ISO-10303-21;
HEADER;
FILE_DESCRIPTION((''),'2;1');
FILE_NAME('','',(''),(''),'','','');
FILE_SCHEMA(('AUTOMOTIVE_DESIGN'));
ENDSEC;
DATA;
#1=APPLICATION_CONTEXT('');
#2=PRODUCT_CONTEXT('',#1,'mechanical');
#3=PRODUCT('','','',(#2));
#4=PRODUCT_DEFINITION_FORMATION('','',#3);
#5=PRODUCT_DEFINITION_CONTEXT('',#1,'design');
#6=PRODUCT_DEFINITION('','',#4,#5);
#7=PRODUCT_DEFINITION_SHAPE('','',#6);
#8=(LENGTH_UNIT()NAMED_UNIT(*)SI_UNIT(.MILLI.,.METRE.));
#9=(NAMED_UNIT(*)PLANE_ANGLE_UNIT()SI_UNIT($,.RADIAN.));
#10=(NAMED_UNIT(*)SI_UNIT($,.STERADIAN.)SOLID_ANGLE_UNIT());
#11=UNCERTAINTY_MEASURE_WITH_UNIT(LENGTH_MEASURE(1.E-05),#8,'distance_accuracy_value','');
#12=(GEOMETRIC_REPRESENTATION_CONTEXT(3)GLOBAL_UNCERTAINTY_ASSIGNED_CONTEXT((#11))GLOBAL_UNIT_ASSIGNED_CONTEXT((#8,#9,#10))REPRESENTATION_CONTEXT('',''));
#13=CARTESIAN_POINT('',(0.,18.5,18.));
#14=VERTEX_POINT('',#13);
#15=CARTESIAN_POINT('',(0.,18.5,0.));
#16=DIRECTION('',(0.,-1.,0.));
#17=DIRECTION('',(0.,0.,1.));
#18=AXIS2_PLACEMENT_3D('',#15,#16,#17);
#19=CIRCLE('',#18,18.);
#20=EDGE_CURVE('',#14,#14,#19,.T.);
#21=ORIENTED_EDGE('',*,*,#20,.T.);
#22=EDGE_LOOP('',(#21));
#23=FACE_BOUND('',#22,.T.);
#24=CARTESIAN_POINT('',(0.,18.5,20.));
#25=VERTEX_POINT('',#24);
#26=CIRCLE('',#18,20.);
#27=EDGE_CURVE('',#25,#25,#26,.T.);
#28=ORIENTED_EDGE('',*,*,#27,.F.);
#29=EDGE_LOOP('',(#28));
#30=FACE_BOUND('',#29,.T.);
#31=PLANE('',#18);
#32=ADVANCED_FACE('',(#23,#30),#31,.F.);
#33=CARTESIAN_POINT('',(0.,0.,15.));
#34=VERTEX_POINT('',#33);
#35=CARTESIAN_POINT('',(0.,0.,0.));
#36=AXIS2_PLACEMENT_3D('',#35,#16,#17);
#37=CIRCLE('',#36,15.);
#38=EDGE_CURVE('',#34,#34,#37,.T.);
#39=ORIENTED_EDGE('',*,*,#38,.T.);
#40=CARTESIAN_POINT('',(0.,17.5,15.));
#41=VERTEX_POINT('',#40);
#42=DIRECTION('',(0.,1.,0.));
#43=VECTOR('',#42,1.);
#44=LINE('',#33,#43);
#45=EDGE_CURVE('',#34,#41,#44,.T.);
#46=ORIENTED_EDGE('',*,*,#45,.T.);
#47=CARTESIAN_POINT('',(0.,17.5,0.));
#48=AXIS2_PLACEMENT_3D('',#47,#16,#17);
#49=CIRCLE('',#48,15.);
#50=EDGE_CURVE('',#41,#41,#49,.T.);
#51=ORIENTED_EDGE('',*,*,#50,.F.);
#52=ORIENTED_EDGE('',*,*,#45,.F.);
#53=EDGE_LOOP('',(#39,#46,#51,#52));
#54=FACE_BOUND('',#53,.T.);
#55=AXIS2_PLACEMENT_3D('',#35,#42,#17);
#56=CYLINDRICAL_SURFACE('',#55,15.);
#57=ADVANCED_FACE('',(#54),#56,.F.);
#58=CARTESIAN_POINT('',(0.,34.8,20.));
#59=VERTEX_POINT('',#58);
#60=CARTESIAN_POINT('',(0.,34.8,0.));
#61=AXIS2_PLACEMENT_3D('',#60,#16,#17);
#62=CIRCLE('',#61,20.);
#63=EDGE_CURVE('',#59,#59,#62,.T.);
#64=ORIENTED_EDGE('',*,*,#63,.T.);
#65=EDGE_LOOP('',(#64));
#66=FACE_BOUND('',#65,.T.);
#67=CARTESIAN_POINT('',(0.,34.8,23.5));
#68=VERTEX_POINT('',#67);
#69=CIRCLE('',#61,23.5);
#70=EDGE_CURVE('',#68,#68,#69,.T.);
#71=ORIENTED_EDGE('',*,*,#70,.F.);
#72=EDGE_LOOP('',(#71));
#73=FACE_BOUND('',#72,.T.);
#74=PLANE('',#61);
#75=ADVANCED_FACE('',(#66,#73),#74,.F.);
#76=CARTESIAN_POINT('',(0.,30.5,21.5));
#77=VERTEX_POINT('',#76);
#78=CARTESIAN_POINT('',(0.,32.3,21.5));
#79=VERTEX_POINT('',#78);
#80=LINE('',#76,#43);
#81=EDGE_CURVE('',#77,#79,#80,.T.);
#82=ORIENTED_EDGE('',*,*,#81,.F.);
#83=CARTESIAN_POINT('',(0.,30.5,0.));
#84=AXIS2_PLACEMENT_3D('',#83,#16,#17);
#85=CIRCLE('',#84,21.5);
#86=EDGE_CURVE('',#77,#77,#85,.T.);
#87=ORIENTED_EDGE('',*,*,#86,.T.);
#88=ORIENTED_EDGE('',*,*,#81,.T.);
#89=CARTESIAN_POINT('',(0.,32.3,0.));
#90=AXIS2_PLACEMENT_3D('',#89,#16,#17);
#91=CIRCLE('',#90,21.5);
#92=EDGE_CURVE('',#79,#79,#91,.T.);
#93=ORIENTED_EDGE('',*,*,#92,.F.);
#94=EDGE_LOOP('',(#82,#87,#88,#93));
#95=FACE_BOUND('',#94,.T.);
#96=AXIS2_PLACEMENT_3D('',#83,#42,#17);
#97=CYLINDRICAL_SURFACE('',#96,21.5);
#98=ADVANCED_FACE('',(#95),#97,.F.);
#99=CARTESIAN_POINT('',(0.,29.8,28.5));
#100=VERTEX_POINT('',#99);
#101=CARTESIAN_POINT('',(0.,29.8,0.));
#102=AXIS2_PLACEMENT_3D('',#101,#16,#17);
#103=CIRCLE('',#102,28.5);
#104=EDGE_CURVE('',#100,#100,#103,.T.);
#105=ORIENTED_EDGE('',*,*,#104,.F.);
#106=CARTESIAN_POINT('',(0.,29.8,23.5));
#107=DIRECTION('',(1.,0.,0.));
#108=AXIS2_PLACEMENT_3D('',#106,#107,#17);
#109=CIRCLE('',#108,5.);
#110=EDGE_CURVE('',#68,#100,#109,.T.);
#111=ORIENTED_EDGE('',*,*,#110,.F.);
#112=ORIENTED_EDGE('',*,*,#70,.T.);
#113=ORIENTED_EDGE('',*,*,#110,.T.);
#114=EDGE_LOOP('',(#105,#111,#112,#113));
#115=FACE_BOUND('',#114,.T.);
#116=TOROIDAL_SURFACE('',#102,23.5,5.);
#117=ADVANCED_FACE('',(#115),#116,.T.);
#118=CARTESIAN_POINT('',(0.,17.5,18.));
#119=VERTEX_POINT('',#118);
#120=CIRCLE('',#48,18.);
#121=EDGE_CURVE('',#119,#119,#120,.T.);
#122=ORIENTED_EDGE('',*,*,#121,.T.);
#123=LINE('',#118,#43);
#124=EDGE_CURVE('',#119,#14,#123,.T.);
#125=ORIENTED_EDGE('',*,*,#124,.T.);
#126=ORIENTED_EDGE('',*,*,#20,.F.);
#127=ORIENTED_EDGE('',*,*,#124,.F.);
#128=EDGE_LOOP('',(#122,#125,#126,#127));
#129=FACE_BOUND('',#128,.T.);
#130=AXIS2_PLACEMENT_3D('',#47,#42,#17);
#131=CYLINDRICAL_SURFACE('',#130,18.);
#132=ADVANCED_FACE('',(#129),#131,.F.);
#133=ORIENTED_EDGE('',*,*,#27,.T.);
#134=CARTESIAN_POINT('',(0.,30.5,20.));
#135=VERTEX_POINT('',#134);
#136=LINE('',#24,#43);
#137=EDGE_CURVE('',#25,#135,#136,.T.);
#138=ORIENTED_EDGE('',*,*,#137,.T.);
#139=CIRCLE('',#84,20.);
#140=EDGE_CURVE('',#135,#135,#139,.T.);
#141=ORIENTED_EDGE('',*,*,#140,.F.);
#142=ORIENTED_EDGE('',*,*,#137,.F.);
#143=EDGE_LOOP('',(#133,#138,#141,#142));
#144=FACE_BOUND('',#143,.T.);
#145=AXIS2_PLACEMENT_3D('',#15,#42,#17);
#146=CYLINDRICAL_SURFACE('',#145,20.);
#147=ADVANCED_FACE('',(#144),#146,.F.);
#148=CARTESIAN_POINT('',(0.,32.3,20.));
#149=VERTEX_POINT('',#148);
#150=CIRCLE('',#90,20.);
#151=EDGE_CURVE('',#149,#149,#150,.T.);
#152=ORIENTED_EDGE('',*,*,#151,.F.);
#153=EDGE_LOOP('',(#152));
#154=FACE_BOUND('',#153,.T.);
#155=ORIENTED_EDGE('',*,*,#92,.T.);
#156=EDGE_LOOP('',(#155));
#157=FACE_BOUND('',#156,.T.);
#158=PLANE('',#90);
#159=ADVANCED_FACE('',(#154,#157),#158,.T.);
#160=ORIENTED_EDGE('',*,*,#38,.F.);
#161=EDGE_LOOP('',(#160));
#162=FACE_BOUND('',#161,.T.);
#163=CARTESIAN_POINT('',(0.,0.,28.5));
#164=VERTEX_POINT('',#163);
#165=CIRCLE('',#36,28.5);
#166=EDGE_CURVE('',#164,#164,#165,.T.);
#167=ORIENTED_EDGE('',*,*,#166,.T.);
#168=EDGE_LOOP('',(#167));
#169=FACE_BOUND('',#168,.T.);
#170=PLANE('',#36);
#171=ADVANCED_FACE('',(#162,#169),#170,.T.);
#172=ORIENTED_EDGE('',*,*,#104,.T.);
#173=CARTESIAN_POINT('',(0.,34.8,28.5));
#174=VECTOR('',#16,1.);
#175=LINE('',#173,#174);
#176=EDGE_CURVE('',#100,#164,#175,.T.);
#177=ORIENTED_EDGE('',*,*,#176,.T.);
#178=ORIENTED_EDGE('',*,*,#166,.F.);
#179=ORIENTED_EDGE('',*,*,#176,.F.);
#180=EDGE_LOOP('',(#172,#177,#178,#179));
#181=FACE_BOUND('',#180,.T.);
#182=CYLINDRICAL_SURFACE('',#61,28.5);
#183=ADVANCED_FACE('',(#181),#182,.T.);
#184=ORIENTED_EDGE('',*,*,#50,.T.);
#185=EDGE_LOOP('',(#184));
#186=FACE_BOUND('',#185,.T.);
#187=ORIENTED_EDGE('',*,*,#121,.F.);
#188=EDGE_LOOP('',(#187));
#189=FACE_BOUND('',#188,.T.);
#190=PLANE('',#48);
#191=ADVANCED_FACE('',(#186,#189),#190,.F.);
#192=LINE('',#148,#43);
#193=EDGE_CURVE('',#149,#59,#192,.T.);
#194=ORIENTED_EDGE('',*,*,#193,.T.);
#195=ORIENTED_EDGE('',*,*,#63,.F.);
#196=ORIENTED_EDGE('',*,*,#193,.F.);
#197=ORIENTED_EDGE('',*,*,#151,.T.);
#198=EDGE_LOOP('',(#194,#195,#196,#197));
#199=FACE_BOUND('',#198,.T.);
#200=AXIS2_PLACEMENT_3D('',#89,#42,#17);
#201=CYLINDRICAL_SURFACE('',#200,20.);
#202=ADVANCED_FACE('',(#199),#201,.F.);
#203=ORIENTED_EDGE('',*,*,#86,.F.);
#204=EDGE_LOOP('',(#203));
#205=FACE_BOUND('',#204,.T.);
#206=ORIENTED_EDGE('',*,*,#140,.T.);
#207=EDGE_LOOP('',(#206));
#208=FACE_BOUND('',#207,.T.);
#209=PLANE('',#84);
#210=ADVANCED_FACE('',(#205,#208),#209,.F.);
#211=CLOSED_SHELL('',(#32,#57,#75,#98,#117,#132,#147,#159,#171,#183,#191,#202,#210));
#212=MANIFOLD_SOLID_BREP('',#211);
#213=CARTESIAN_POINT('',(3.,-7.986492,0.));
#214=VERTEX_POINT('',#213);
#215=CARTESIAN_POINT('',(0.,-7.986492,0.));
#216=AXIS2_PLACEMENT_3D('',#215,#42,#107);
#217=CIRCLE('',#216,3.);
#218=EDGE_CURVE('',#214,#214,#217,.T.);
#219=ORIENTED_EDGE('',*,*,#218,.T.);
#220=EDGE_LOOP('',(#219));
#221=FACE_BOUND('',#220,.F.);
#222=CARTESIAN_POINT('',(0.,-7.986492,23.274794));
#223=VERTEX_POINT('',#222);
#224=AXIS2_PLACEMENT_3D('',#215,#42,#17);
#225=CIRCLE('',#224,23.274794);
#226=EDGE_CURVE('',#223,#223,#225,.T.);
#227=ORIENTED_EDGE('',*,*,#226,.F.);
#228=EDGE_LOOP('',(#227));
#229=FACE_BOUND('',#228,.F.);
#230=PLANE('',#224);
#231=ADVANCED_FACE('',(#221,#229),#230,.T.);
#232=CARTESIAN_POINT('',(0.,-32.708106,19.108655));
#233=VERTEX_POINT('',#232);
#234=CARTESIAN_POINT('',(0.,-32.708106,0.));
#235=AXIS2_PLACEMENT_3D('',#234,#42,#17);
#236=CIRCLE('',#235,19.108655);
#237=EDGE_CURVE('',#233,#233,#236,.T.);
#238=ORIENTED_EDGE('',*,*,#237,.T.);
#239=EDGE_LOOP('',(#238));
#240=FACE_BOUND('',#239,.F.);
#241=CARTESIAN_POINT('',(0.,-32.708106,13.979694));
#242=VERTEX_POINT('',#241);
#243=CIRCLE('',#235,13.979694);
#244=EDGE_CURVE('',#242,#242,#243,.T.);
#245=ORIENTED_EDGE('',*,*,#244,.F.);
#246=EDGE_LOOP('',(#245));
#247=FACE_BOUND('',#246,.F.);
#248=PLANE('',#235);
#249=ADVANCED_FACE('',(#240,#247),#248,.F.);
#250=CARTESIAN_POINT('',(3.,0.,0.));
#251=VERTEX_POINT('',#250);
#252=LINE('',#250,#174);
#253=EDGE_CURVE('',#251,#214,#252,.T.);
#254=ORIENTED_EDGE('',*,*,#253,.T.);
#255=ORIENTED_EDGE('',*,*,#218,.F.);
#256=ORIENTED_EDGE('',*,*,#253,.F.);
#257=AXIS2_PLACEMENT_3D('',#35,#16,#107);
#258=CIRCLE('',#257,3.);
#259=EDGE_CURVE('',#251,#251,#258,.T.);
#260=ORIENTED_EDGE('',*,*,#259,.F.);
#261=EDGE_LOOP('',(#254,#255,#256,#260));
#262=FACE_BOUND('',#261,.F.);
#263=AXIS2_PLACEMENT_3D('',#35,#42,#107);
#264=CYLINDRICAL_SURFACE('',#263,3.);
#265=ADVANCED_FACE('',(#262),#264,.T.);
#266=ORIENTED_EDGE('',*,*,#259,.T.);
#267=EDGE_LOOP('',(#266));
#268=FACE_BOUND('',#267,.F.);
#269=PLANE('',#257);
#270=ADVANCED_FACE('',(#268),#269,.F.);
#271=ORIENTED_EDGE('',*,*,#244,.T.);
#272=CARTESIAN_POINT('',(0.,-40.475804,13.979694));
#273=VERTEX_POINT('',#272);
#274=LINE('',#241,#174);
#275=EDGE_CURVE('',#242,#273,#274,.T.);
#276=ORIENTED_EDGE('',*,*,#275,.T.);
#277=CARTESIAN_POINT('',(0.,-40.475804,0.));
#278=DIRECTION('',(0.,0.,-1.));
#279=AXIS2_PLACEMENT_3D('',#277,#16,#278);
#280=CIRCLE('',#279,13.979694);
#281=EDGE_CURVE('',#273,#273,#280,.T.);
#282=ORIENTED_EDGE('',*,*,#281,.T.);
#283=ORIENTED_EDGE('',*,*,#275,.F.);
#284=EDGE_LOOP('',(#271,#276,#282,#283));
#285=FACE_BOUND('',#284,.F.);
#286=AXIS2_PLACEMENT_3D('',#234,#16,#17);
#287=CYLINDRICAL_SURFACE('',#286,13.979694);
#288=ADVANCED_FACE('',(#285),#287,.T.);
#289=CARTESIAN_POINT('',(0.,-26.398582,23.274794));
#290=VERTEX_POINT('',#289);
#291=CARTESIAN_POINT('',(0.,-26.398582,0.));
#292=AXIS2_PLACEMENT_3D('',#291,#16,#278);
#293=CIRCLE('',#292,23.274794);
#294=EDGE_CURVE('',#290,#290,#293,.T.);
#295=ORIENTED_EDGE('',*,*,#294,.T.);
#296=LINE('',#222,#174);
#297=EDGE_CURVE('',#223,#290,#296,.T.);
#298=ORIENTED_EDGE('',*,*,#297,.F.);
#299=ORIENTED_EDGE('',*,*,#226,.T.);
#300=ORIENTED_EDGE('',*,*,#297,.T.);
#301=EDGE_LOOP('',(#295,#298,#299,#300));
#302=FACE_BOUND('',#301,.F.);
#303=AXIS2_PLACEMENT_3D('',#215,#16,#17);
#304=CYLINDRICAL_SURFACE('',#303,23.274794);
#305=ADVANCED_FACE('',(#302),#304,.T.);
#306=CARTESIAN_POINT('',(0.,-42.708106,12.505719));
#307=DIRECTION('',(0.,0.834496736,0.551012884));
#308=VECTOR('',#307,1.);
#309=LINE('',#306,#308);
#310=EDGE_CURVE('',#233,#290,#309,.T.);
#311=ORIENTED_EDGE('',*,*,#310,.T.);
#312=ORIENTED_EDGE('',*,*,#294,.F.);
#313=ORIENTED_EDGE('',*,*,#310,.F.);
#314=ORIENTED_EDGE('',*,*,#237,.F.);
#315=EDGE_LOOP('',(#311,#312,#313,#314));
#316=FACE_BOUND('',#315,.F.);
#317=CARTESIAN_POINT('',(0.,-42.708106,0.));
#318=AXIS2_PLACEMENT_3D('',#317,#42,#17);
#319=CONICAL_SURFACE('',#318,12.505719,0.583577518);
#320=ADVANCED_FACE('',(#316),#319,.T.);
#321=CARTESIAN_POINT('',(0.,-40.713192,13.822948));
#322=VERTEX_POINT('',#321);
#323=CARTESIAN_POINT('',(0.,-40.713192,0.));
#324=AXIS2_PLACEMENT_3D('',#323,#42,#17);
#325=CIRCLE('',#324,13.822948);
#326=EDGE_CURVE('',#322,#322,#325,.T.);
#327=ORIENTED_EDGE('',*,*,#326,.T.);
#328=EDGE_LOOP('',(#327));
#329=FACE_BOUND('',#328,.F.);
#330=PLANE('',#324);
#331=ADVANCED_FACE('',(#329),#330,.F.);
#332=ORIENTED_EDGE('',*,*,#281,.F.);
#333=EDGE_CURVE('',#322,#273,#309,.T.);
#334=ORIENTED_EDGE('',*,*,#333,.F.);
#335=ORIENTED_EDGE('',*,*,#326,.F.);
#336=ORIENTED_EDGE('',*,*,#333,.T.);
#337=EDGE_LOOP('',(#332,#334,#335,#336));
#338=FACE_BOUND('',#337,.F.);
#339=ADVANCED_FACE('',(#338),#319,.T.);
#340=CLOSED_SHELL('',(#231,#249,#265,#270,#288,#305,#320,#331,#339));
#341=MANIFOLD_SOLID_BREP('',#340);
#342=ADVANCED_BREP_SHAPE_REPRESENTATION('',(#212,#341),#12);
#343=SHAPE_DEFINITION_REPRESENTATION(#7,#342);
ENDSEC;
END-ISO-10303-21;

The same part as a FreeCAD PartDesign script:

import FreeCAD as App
import Part
import Sketcher
from FreeCAD import Vector
Q = App.Units.Quantity


def edges_at(feature, points):
    """Names of the edges that pass closest to the given points."""
    edges = feature.Shape.Edges
    near = lambda p: min(range(len(edges)), key=lambda i: edges[i].distToShape(Part.Vertex(*p))[0])
    return sorted({f"Edge{near(p) + 1}" for p in points})


def add_polygon(sketch, points):
    """Adds a closed chain of lines whose ends are joined by coincident constraints."""
    first, n = sketch.GeometryCount, len(points)
    for a, b in zip(points, points[1:] + points[:1]):
        sketch.addGeometry(Part.LineSegment(App.Vector(*a, 0), App.Vector(*b, 0)), False)
    for i in range(n):
        sketch.addConstraint(Sketcher.Constraint("Coincident", first + i, 2, first + (i + 1) % n, 1))

doc = App.newDocument("Part")
body = doc.addObject("PartDesign::Body", "Body")

# Sketch on XZ plane
sketch1 = body.newObject("Sketcher::SketchObject", "Sketch")
sketch1.AttachmentSupport = (doc.getObject("XZ_Plane"), [""])
sketch1.MapMode = "FlatFace"
sketch1.addGeometry(Part.Circle(Vector(0, 0, 0), Vector(0, 0, 1), 3), False)
sketch1.addConstraint([
    Sketcher.Constraint("Coincident", 0, 3, -1, 1),
    Sketcher.Constraint("Diameter", 0, Q("6 mm")),
])
pad1 = body.newObject("PartDesign::Pad", "Pad")
pad1.Profile = sketch1
pad1.Length = 20

# Sketch on YZ plane
sketch2 = body.newObject("Sketcher::SketchObject", "Sketch001")
sketch2.AttachmentSupport = (doc.getObject("YZ_Plane"), [""])
sketch2.MapMode = "FlatFace"
add_polygon(sketch2, [(-40.713192, 0), (-7.986492, 0), (-7.986492, 23.274794), (-32.708106, 23.274794), (-32.708106, 13.979694), (-40.713192, 13.979694)])  # lines 0-5
sketch2.addConstraint([
    Sketcher.Constraint("Horizontal", 0),
    Sketcher.Constraint("Vertical", 1),
    Sketcher.Constraint("Horizontal", 2),
    Sketcher.Constraint("Vertical", 3),
    Sketcher.Constraint("Horizontal", 4),
    Sketcher.Constraint("Vertical", 5),
    Sketcher.Constraint("PointOnObject", 0, 2, -1),
    Sketcher.Constraint("DistanceX", 0, 1, 0, 2, Q("32.7267 mm")),
    Sketcher.Constraint("DistanceY", 3, 2, 3, 1, Q("9.2951 mm")),
    Sketcher.Constraint("DistanceX", 2, 2, 2, 1, Q("24.721614 mm")),
    Sketcher.Constraint("DistanceY", 1, 1, 1, 2, Q("23.274794 mm")),
    Sketcher.Constraint("DistanceX", 0, 2, -1, 1, Q("7.986492 mm")),
])
revolution = body.newObject("PartDesign::Revolution", "Revolution")
revolution.Profile = sketch2
revolution.ReferenceAxis = (sketch2, ["H_Axis"])
revolution.Angle = 360

# Sketch on YZ plane
sketch3 = body.newObject("Sketcher::SketchObject", "Sketch002")
sketch3.AttachmentSupport = (doc.getObject("YZ_Plane"), [""])
sketch3.MapMode = "FlatFace"
add_polygon(sketch3, [(-42.708106, 12.505719), (-4.846163, 37.505719), (-42.708106, 37.505719)])  # lines 0-2
sketch3.addConstraint([
    Sketcher.Constraint("Horizontal", 1),
    Sketcher.Constraint("Vertical", 2),
    Sketcher.Constraint("DistanceY", 2, 2, 2, 1, Q("25 mm")),
    Sketcher.Constraint("Distance", 0, Q("45.37099 mm")),
    Sketcher.Constraint("DistanceY", -1, 1, 0, 2, Q("37.505719 mm")),
    Sketcher.Constraint("DistanceX", 0, 2, -1, 1, Q("4.846163 mm")),
])
groove = body.newObject("PartDesign::Groove", "Groove")
groove.Profile = sketch3
groove.ReferenceAxis = (sketch3, ["H_Axis"])
groove.Angle = 360
body2 = doc.addObject("PartDesign::Body", "Body001")

# Sketch on YZ plane
sketch4 = body2.newObject("Sketcher::SketchObject", "Sketch003")
sketch4.AttachmentSupport = (doc.getObject("YZ_Plane001"), [""])
sketch4.MapMode = "FlatFace"
add_polygon(sketch4, [(0, 28.5), (0, 15), (17.5, 15), (17.5, 18), (18.5, 18), (18.5, 20), (30.5, 20), (30.5, 21.5), (32.3, 21.5), (32.3, 20), (34.8, 20), (34.8, 28.5)])  # lines 0-11
sketch4.addConstraint([
    Sketcher.Constraint("Vertical", 0),
    Sketcher.Constraint("Horizontal", 1),
    Sketcher.Constraint("Vertical", 2),
    Sketcher.Constraint("Horizontal", 3),
    Sketcher.Constraint("Vertical", 4),
    Sketcher.Constraint("Horizontal", 5),
    Sketcher.Constraint("Vertical", 6),
    Sketcher.Constraint("Horizontal", 7),
    Sketcher.Constraint("Vertical", 8),
    Sketcher.Constraint("Horizontal", 9),
    Sketcher.Constraint("Vertical", 10),
    Sketcher.Constraint("Horizontal", 11),
    Sketcher.Constraint("PointOnObject", 0, 2, -2),
    Sketcher.Constraint("Horizontal", 5, 2, 8, 2),
    Sketcher.Constraint("DistanceX", 3, 1, 3, 2, Q("1 mm")),
    Sketcher.Constraint("DistanceX", 5, 1, 5, 2, Q("12 mm")),
    Sketcher.Constraint("DistanceY", 2, 1, 2, 2, Q("3 mm")),
    Sketcher.Constraint("DistanceY", 4, 1, 4, 2, Q("2 mm")),
    Sketcher.Constraint("DistanceX", 1, 1, 1, 2, Q("17.5 mm")),
    Sketcher.Constraint("DistanceX", 7, 1, 7, 2, Q("1.8 mm")),
    Sketcher.Constraint("DistanceX", 9, 1, 9, 2, Q("2.5 mm")),
    Sketcher.Constraint("DistanceY", 0, 2, 0, 1, Q("13.5 mm")),
    Sketcher.Constraint("DistanceY", 6, 1, 6, 2, Q("1.5 mm")),
    Sketcher.Constraint("DistanceY", -1, 1, 0, 2, Q("15 mm")),
])
revolution2 = body2.newObject("PartDesign::Revolution", "Revolution001")
revolution2.Profile = sketch4
revolution2.ReferenceAxis = (sketch4, ["H_Axis"])
revolution2.Angle = 360
doc.recompute()

fillet = body2.newObject("PartDesign::Fillet", "Fillet")
fillet.Base = (revolution2, edges_at(revolution2, [(0, 34.8, -28.5)]))
fillet.Radius = 5

doc.recompute()
